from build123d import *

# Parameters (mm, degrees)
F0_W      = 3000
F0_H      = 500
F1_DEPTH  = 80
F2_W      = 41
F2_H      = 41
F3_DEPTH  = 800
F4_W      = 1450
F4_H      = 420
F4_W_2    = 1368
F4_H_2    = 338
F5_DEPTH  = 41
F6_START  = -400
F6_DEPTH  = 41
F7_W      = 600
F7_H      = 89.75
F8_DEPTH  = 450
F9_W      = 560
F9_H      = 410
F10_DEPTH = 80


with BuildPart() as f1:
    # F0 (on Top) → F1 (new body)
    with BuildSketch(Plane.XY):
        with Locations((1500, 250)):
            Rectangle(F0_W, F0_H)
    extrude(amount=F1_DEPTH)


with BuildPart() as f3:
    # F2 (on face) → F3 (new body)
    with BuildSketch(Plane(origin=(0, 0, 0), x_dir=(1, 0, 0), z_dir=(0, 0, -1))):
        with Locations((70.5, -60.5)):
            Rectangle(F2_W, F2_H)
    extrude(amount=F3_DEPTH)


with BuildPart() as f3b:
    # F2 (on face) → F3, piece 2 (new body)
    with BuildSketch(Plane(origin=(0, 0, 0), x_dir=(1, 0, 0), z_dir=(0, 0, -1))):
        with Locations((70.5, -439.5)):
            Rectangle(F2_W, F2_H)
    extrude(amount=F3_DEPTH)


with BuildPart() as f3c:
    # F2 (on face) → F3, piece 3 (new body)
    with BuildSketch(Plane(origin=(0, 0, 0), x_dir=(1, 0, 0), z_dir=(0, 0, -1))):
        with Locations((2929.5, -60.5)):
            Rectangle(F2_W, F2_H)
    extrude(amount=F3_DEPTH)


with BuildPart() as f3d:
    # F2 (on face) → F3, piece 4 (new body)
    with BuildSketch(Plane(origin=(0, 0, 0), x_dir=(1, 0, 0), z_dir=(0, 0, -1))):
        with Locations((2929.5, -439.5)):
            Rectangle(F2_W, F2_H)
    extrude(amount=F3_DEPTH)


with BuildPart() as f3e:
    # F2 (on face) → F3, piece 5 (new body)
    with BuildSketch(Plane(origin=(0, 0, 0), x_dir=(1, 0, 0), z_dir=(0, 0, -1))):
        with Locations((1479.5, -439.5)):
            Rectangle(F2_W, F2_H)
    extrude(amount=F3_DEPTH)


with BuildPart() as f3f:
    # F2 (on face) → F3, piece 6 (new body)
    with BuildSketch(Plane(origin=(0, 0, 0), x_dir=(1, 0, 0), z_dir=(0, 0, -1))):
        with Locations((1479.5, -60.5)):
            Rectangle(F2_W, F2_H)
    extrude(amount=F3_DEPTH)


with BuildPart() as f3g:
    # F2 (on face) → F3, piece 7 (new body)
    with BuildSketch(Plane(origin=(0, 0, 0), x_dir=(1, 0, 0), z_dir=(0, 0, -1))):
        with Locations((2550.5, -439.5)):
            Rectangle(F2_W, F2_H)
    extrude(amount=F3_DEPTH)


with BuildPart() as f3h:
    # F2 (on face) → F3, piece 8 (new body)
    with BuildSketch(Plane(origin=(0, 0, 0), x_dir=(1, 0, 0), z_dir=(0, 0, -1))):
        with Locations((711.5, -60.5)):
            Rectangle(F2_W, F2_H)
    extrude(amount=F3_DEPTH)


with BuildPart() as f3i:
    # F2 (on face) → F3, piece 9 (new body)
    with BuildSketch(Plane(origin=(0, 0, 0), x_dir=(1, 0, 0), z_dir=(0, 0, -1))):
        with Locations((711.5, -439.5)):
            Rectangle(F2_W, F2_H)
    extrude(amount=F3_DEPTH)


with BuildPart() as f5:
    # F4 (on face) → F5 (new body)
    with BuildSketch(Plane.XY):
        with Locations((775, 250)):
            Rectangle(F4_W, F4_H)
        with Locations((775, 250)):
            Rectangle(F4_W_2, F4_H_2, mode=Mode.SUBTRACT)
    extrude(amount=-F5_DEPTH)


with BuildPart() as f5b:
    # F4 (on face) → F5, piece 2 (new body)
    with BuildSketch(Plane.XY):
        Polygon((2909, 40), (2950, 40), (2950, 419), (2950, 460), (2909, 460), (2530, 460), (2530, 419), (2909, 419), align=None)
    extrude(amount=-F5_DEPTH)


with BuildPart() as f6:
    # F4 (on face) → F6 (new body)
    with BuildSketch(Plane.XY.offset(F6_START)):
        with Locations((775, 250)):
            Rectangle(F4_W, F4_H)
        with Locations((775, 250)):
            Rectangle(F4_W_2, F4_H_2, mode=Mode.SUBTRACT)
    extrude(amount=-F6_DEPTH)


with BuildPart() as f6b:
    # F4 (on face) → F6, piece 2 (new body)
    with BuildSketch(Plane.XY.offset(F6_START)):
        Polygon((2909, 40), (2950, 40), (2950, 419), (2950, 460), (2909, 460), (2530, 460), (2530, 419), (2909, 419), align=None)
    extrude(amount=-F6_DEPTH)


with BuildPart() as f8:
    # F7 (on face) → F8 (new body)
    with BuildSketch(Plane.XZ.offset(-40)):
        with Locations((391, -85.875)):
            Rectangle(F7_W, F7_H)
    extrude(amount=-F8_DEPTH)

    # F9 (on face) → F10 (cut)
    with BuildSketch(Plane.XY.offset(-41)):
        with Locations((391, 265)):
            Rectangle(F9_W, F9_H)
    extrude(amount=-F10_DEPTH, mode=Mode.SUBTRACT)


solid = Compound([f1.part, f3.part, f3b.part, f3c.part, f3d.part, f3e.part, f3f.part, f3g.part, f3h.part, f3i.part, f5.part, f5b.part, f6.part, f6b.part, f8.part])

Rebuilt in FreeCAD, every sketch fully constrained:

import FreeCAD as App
import Part
import Sketcher
Q = App.Units.Quantity


def add_polygon(sketch, points):
    """Adds a closed chain of lines whose ends are joined by coincident constraints."""
    first, n = sketch.GeometryCount, len(points)
    for a, b in zip(points, points[1:] + points[:1]):
        sketch.addGeometry(Part.LineSegment(App.Vector(*a, 0), App.Vector(*b, 0)), False)
    for i in range(n):
        sketch.addConstraint(Sketcher.Constraint("Coincident", first + i, 2, first + (i + 1) % n, 1))

doc = App.newDocument("Part")
body = doc.addObject("PartDesign::Body", "Body")

sketch1 = body.newObject("Sketcher::SketchObject", "Sketch")
sketch1.AttachmentSupport = (doc.getObject("XY_Plane"), [""])
sketch1.MapMode = "FlatFace"
add_polygon(sketch1, [(0, 500), (0, 0), (3000, 0), (3000, 500)])
sketch1.addConstraint([
    Sketcher.Constraint("Vertical", 0),
    Sketcher.Constraint("Horizontal", 1),
    Sketcher.Constraint("Vertical", 2),
    Sketcher.Constraint("Horizontal", 3),
    Sketcher.Constraint("Coincident", 0, 2, -1, 1),
    Sketcher.Constraint("DistanceX", 1, 1, 1, 2, Q("3000 mm")),
    Sketcher.Constraint("DistanceY", 0, 2, 0, 1, Q("500 mm")),
])
pad1 = body.newObject("PartDesign::Pad", "Pad")
pad1.Profile = sketch1
pad1.Length = 80
body2 = doc.addObject("PartDesign::Body", "Body001")

sketch2 = body2.newObject("Sketcher::SketchObject", "Sketch001")
sketch2.AttachmentSupport = (doc.getObject("XY_Plane001"), [""])
sketch2.MapMode = "FlatFace"
add_polygon(sketch2, [(50, 40), (50, 81), (91, 81), (91, 40)])
sketch2.addConstraint([
    Sketcher.Constraint("Vertical", 0),
    Sketcher.Constraint("Horizontal", 1),
    Sketcher.Constraint("Vertical", 2),
    Sketcher.Constraint("Horizontal", 3),
    Sketcher.Constraint("Equal", 3, 0),
    Sketcher.Constraint("DistanceX", 1, 1, 1, 2, Q("41 mm")),
    Sketcher.Constraint("DistanceX", -1, 1, 0, 2, Q("50 mm")),
    Sketcher.Constraint("DistanceY", -1, 1, 0, 2, Q("81 mm")),
])
pad2 = body2.newObject("PartDesign::Pad", "Pad001")
pad2.Profile = sketch2
pad2.Length = 800
pad2.Reversed = True
body3 = doc.addObject("PartDesign::Body", "Body002")

sketch3 = body3.newObject("Sketcher::SketchObject", "Sketch002")
sketch3.AttachmentSupport = (doc.getObject("XY_Plane002"), [""])
sketch3.MapMode = "FlatFace"
add_polygon(sketch3, [(50, 419), (50, 460), (91, 460), (91, 419)])
sketch3.addConstraint([
    Sketcher.Constraint("Vertical", 0),
    Sketcher.Constraint("Horizontal", 1),
    Sketcher.Constraint("Vertical", 2),
    Sketcher.Constraint("Horizontal", 3),
    Sketcher.Constraint("Equal", 3, 0),
    Sketcher.Constraint("DistanceX", 1, 1, 1, 2, Q("41 mm")),
    Sketcher.Constraint("DistanceX", -1, 1, 0, 2, Q("50 mm")),
    Sketcher.Constraint("DistanceY", -1, 1, 0, 2, Q("460 mm")),
])
pad3 = body3.newObject("PartDesign::Pad", "Pad002")
pad3.Profile = sketch3
pad3.Length = 800
pad3.Reversed = True
body4 = doc.addObject("PartDesign::Body", "Body003")

sketch4 = body4.newObject("Sketcher::SketchObject", "Sketch003")
sketch4.AttachmentSupport = (doc.getObject("XY_Plane003"), [""])
sketch4.MapMode = "FlatFace"
add_polygon(sketch4, [(2909, 40), (2909, 81), (2950, 81), (2950, 40)])
sketch4.addConstraint([
    Sketcher.Constraint("Vertical", 0),
    Sketcher.Constraint("Horizontal", 1),
    Sketcher.Constraint("Vertical", 2),
    Sketcher.Constraint("Horizontal", 3),
    Sketcher.Constraint("Equal", 3, 0),
    Sketcher.Constraint("DistanceX", 1, 1, 1, 2, Q("41 mm")),
    Sketcher.Constraint("DistanceX", -1, 1, 0, 2, Q("2909 mm")),
    Sketcher.Constraint("DistanceY", -1, 1, 0, 2, Q("81 mm")),
])
pad4 = body4.newObject("PartDesign::Pad", "Pad003")
pad4.Profile = sketch4
pad4.Length = 800
pad4.Reversed = True
body5 = doc.addObject("PartDesign::Body", "Body004")

sketch5 = body5.newObject("Sketcher::SketchObject", "Sketch004")
sketch5.AttachmentSupport = (doc.getObject("XY_Plane004"), [""])
sketch5.MapMode = "FlatFace"
add_polygon(sketch5, [(2909, 419), (2909, 460), (2950, 460), (2950, 419)])
sketch5.addConstraint([
    Sketcher.Constraint("Vertical", 0),
    Sketcher.Constraint("Horizontal", 1),
    Sketcher.Constraint("Vertical", 2),
    Sketcher.Constraint("Horizontal", 3),
    Sketcher.Constraint("Equal", 3, 0),
    Sketcher.Constraint("DistanceX", 1, 1, 1, 2, Q("41 mm")),
    Sketcher.Constraint("DistanceX", -1, 1, 0, 2, Q("2909 mm")),
    Sketcher.Constraint("DistanceY", -1, 1, 0, 2, Q("460 mm")),
])
pad5 = body5.newObject("PartDesign::Pad", "Pad004")
pad5.Profile = sketch5
pad5.Length = 800
pad5.Reversed = True
body6 = doc.addObject("PartDesign::Body", "Body005")

sketch6 = body6.newObject("Sketcher::SketchObject", "Sketch005")
sketch6.AttachmentSupport = (doc.getObject("XY_Plane005"), [""])
sketch6.MapMode = "FlatFace"
add_polygon(sketch6, [(1459, 419), (1459, 460), (1500, 460), (1500, 419)])
sketch6.addConstraint([
    Sketcher.Constraint("Vertical", 0),
    Sketcher.Constraint("Horizontal", 1),
    Sketcher.Constraint("Vertical", 2),
    Sketcher.Constraint("Horizontal", 3),
    Sketcher.Constraint("Equal", 3, 0),
    Sketcher.Constraint("DistanceX", 1, 1, 1, 2, Q("41 mm")),
    Sketcher.Constraint("DistanceX", -1, 1, 0, 2, Q("1459 mm")),
    Sketcher.Constraint("DistanceY", -1, 1, 0, 2, Q("460 mm")),
])
pad6 = body6.newObject("PartDesign::Pad", "Pad005")
pad6.Profile = sketch6
pad6.Length = 800
pad6.Reversed = True
body7 = doc.addObject("PartDesign::Body", "Body006")

sketch7 = body7.newObject("Sketcher::SketchObject", "Sketch006")
sketch7.AttachmentSupport = (doc.getObject("XY_Plane006"), [""])
sketch7.MapMode = "FlatFace"
add_polygon(sketch7, [(1459, 40), (1459, 81), (1500, 81), (1500, 40)])
sketch7.addConstraint([
    Sketcher.Constraint("Vertical", 0),
    Sketcher.Constraint("Horizontal", 1),
    Sketcher.Constraint("Vertical", 2),
    Sketcher.Constraint("Horizontal", 3),
    Sketcher.Constraint("Equal", 3, 0),
    Sketcher.Constraint("DistanceX", 1, 1, 1, 2, Q("41 mm")),
    Sketcher.Constraint("DistanceX", -1, 1, 0, 2, Q("1459 mm")),
    Sketcher.Constraint("DistanceY", -1, 1, 0, 2, Q("81 mm")),
])
pad7 = body7.newObject("PartDesign::Pad", "Pad006")
pad7.Profile = sketch7
pad7.Length = 800
pad7.Reversed = True
body8 = doc.addObject("PartDesign::Body", "Body007")

sketch8 = body8.newObject("Sketcher::SketchObject", "Sketch007")
sketch8.AttachmentSupport = (doc.getObject("XY_Plane007"), [""])
sketch8.MapMode = "FlatFace"
add_polygon(sketch8, [(2530, 419), (2530, 460), (2571, 460), (2571, 419)])
sketch8.addConstraint([
    Sketcher.Constraint("Vertical", 0),
    Sketcher.Constraint("Horizontal", 1),
    Sketcher.Constraint("Vertical", 2),
    Sketcher.Constraint("Horizontal", 3),
    Sketcher.Constraint("Equal", 3, 0),
    Sketcher.Constraint("DistanceX", 1, 1, 1, 2, Q("41 mm")),
    Sketcher.Constraint("DistanceX", -1, 1, 0, 2, Q("2530 mm")),
    Sketcher.Constraint("DistanceY", -1, 1, 0, 2, Q("460 mm")),
])
pad8 = body8.newObject("PartDesign::Pad", "Pad007")
pad8.Profile = sketch8
pad8.Length = 800
pad8.Reversed = True
body9 = doc.addObject("PartDesign::Body", "Body008")

sketch9 = body9.newObject("Sketcher::SketchObject", "Sketch008")
sketch9.AttachmentSupport = (doc.getObject("XY_Plane008"), [""])
sketch9.MapMode = "FlatFace"
add_polygon(sketch9, [(691, 40), (691, 81), (732, 81), (732, 40)])
sketch9.addConstraint([
    Sketcher.Constraint("Vertical", 0),
    Sketcher.Constraint("Horizontal", 1),
    Sketcher.Constraint("Vertical", 2),
    Sketcher.Constraint("Horizontal", 3),
    Sketcher.Constraint("Equal", 3, 0),
    Sketcher.Constraint("DistanceX", 1, 1, 1, 2, Q("41 mm")),
    Sketcher.Constraint("DistanceX", -1, 1, 0, 2, Q("691 mm")),
    Sketcher.Constraint("DistanceY", -1, 1, 0, 2, Q("81 mm")),
])
pad9 = body9.newObject("PartDesign::Pad", "Pad008")
pad9.Profile = sketch9
pad9.Length = 800
pad9.Reversed = True
body10 = doc.addObject("PartDesign::Body", "Body009")

sketch10 = body10.newObject("Sketcher::SketchObject", "Sketch009")
sketch10.AttachmentSupport = (doc.getObject("XY_Plane009"), [""])
sketch10.MapMode = "FlatFace"
add_polygon(sketch10, [(691, 419), (691, 460), (732, 460), (732, 419)])
sketch10.addConstraint([
    Sketcher.Constraint("Vertical", 0),
    Sketcher.Constraint("Horizontal", 1),
    Sketcher.Constraint("Vertical", 2),
    Sketcher.Constraint("Horizontal", 3),
    Sketcher.Constraint("Equal", 3, 0),
    Sketcher.Constraint("DistanceX", 1, 1, 1, 2, Q("41 mm")),
    Sketcher.Constraint("DistanceX", -1, 1, 0, 2, Q("691 mm")),
    Sketcher.Constraint("DistanceY", -1, 1, 0, 2, Q("460 mm")),
])
pad10 = body10.newObject("PartDesign::Pad", "Pad009")
pad10.Profile = sketch10
pad10.Length = 800
pad10.Reversed = True
body11 = doc.addObject("PartDesign::Body", "Body010")

sketch11 = body11.newObject("Sketcher::SketchObject", "Sketch010")
sketch11.AttachmentSupport = (doc.getObject("XY_Plane010"), [""])
sketch11.MapMode = "FlatFace"
add_polygon(sketch11, [(50, 460), (50, 40), (1500, 40), (1500, 460)])
add_polygon(sketch11, [(1459, 81), (91, 81), (91, 419), (1459, 419)])
sketch11.addConstraint([
    Sketcher.Constraint("Vertical", 0),
    Sketcher.Constraint("Horizontal", 1),
    Sketcher.Constraint("Vertical", 2),
    Sketcher.Constraint("Horizontal", 3),
    Sketcher.Constraint("Horizontal", 4),
    Sketcher.Constraint("Vertical", 5),
    Sketcher.Constraint("Horizontal", 6),
    Sketcher.Constraint("Vertical", 7),
    Sketcher.Constraint("DistanceX", 1, 1, 1, 2, Q("1450 mm")),
    Sketcher.Constraint("DistanceX", 4, 2, 4, 1, Q("1368 mm")),
    Sketcher.Constraint("DistanceY", 0, 2, 0, 1, Q("420 mm")),
    Sketcher.Constraint("DistanceY", 5, 1, 5, 2, Q("338 mm")),
    Sketcher.Constraint("DistanceX", -1, 1, 0, 2, Q("50 mm")),
    Sketcher.Constraint("DistanceY", -1, 1, 0, 2, Q("40 mm")),
    Sketcher.Constraint("DistanceX", -1, 1, 4, 2, Q("91 mm")),
    Sketcher.Constraint("DistanceY", -1, 1, 4, 2, Q("81 mm")),
])
pad11 = body11.newObject("PartDesign::Pad", "Pad010")
pad11.Profile = sketch11
pad11.Length = 41
pad11.Reversed = True
body12 = doc.addObject("PartDesign::Body", "Body011")

sketch12 = body12.newObject("Sketcher::SketchObject", "Sketch011")
sketch12.AttachmentSupport = (doc.getObject("XY_Plane011"), [""])
sketch12.MapMode = "FlatFace"
add_polygon(sketch12, [(2909, 40), (2950, 40), (2950, 460), (2530, 460), (2530, 419), (2909, 419)])
sketch12.addConstraint([
    Sketcher.Constraint("Horizontal", 0),
    Sketcher.Constraint("Vertical", 1),
    Sketcher.Constraint("Horizontal", 2),
    Sketcher.Constraint("Vertical", 3),
    Sketcher.Constraint("Horizontal", 4),
    Sketcher.Constraint("Vertical", 5),
    Sketcher.Constraint("Equal", 2, 1),
    Sketcher.Constraint("Equal", 0, 3),
    Sketcher.Constraint("DistanceX", 0, 1, 0, 2, Q("41 mm")),
    Sketcher.Constraint("DistanceX", 2, 2, 2, 1, Q("420 mm")),
    Sketcher.Constraint("DistanceX", -1, 1, 0, 2, Q("2950 mm")),
    Sketcher.Constraint("DistanceY", -1, 1, 0, 2, Q("40 mm")),
])
pad12 = body12.newObject("PartDesign::Pad", "Pad011")
pad12.Profile = sketch12
pad12.Length = 41
pad12.Reversed = True
body13 = doc.addObject("PartDesign::Body", "Body012")

sketch13 = body13.newObject("Sketcher::SketchObject", "Sketch012")
sketch13.AttachmentSupport = (doc.getObject("XY_Plane012"), [""])
sketch13.MapMode = "FlatFace"
sketch13.AttachmentOffset = App.Placement(App.Vector(0, 0, -400), App.Rotation())
add_polygon(sketch13, [(50, 460), (50, 40), (1500, 40), (1500, 460)])
add_polygon(sketch13, [(1459, 81), (91, 81), (91, 419), (1459, 419)])
sketch13.addConstraint([
    Sketcher.Constraint("Vertical", 0),
    Sketcher.Constraint("Horizontal", 1),
    Sketcher.Constraint("Vertical", 2),
    Sketcher.Constraint("Horizontal", 3),
    Sketcher.Constraint("Horizontal", 4),
    Sketcher.Constraint("Vertical", 5),
    Sketcher.Constraint("Horizontal", 6),
    Sketcher.Constraint("Vertical", 7),
    Sketcher.Constraint("DistanceX", 1, 1, 1, 2, Q("1450 mm")),
    Sketcher.Constraint("DistanceX", 4, 2, 4, 1, Q("1368 mm")),
    Sketcher.Constraint("DistanceY", 0, 2, 0, 1, Q("420 mm")),
    Sketcher.Constraint("DistanceY", 5, 1, 5, 2, Q("338 mm")),
    Sketcher.Constraint("DistanceX", -1, 1, 0, 2, Q("50 mm")),
    Sketcher.Constraint("DistanceY", -1, 1, 0, 2, Q("40 mm")),
    Sketcher.Constraint("DistanceX", -1, 1, 4, 2, Q("91 mm")),
    Sketcher.Constraint("DistanceY", -1, 1, 4, 2, Q("81 mm")),
])
pad13 = body13.newObject("PartDesign::Pad", "Pad012")
pad13.Profile = sketch13
pad13.Length = 41
pad13.Reversed = True
body14 = doc.addObject("PartDesign::Body", "Body013")

sketch14 = body14.newObject("Sketcher::SketchObject", "Sketch013")
sketch14.AttachmentSupport = (doc.getObject("XY_Plane013"), [""])
sketch14.MapMode = "FlatFace"
sketch14.AttachmentOffset = App.Placement(App.Vector(0, 0, -400), App.Rotation())
add_polygon(sketch14, [(2909, 40), (2950, 40), (2950, 460), (2530, 460), (2530, 419), (2909, 419)])
sketch14.addConstraint([
    Sketcher.Constraint("Horizontal", 0),
    Sketcher.Constraint("Vertical", 1),
    Sketcher.Constraint("Horizontal", 2),
    Sketcher.Constraint("Vertical", 3),
    Sketcher.Constraint("Horizontal", 4),
    Sketcher.Constraint("Vertical", 5),
    Sketcher.Constraint("Equal", 2, 1),
    Sketcher.Constraint("Equal", 0, 3),
    Sketcher.Constraint("DistanceX", 0, 1, 0, 2, Q("41 mm")),
    Sketcher.Constraint("DistanceX", 2, 2, 2, 1, Q("420 mm")),
    Sketcher.Constraint("DistanceX", -1, 1, 0, 2, Q("2950 mm")),
    Sketcher.Constraint("DistanceY", -1, 1, 0, 2, Q("40 mm")),
])
pad14 = body14.newObject("PartDesign::Pad", "Pad013")
pad14.Profile = sketch14
pad14.Length = 41
pad14.Reversed = True
body15 = doc.addObject("PartDesign::Body", "Body014")

sketch15 = body15.newObject("Sketcher::SketchObject", "Sketch014")
sketch15.AttachmentSupport = (doc.getObject("XZ_Plane014"), [""])
sketch15.MapMode = "FlatFace"
sketch15.AttachmentOffset = App.Placement(App.Vector(0, 0, -40), App.Rotation())
add_polygon(sketch15, [(91, -41), (91, -130.75), (691, -130.75), (691, -41)])
sketch15.addConstraint([
    Sketcher.Constraint("Vertical", 0),
    Sketcher.Constraint("Horizontal", 1),
    Sketcher.Constraint("Vertical", 2),
    Sketcher.Constraint("Horizontal", 3),
    Sketcher.Constraint("DistanceX", 1, 1, 1, 2, Q("600 mm")),
    Sketcher.Constraint("DistanceX", -1, 1, 0, 2, Q("91 mm")),
    Sketcher.Constraint("DistanceY", 2, 2, -1, 1, Q("41 mm")),
    Sketcher.Constraint("DistanceY", 0, 2, 0, 1, Q("89.75 mm")),
])
pad15 = body15.newObject("PartDesign::Pad", "Pad014")
pad15.Profile = sketch15
pad15.Length = 450
pad15.Reversed = True

sketch16 = body15.newObject("Sketcher::SketchObject", "Sketch015")
sketch16.AttachmentSupport = (doc.getObject("XY_Plane014"), [""])
sketch16.MapMode = "FlatFace"
sketch16.AttachmentOffset = App.Placement(App.Vector(0, 0, -41), App.Rotation())
add_polygon(sketch16, [(111, 470), (111, 60), (671, 60), (671, 470)])
sketch16.addConstraint([
    Sketcher.Constraint("Vertical", 0),
    Sketcher.Constraint("Horizontal", 1),
    Sketcher.Constraint("Vertical", 2),
    Sketcher.Constraint("Horizontal", 3),
    Sketcher.Constraint("DistanceX", 1, 1, 1, 2, Q("560 mm")),
    Sketcher.Constraint("DistanceY", 0, 2, 0, 1, Q("410 mm")),
    Sketcher.Constraint("DistanceX", -1, 1, 0, 2, Q("111 mm")),
    Sketcher.Constraint("DistanceY", -1, 1, 0, 2, Q("60 mm")),
])
pocket1 = body15.newObject("PartDesign::Pocket", "Pocket")
pocket1.Profile = sketch16
pocket1.Length = 80

doc.recompute()
